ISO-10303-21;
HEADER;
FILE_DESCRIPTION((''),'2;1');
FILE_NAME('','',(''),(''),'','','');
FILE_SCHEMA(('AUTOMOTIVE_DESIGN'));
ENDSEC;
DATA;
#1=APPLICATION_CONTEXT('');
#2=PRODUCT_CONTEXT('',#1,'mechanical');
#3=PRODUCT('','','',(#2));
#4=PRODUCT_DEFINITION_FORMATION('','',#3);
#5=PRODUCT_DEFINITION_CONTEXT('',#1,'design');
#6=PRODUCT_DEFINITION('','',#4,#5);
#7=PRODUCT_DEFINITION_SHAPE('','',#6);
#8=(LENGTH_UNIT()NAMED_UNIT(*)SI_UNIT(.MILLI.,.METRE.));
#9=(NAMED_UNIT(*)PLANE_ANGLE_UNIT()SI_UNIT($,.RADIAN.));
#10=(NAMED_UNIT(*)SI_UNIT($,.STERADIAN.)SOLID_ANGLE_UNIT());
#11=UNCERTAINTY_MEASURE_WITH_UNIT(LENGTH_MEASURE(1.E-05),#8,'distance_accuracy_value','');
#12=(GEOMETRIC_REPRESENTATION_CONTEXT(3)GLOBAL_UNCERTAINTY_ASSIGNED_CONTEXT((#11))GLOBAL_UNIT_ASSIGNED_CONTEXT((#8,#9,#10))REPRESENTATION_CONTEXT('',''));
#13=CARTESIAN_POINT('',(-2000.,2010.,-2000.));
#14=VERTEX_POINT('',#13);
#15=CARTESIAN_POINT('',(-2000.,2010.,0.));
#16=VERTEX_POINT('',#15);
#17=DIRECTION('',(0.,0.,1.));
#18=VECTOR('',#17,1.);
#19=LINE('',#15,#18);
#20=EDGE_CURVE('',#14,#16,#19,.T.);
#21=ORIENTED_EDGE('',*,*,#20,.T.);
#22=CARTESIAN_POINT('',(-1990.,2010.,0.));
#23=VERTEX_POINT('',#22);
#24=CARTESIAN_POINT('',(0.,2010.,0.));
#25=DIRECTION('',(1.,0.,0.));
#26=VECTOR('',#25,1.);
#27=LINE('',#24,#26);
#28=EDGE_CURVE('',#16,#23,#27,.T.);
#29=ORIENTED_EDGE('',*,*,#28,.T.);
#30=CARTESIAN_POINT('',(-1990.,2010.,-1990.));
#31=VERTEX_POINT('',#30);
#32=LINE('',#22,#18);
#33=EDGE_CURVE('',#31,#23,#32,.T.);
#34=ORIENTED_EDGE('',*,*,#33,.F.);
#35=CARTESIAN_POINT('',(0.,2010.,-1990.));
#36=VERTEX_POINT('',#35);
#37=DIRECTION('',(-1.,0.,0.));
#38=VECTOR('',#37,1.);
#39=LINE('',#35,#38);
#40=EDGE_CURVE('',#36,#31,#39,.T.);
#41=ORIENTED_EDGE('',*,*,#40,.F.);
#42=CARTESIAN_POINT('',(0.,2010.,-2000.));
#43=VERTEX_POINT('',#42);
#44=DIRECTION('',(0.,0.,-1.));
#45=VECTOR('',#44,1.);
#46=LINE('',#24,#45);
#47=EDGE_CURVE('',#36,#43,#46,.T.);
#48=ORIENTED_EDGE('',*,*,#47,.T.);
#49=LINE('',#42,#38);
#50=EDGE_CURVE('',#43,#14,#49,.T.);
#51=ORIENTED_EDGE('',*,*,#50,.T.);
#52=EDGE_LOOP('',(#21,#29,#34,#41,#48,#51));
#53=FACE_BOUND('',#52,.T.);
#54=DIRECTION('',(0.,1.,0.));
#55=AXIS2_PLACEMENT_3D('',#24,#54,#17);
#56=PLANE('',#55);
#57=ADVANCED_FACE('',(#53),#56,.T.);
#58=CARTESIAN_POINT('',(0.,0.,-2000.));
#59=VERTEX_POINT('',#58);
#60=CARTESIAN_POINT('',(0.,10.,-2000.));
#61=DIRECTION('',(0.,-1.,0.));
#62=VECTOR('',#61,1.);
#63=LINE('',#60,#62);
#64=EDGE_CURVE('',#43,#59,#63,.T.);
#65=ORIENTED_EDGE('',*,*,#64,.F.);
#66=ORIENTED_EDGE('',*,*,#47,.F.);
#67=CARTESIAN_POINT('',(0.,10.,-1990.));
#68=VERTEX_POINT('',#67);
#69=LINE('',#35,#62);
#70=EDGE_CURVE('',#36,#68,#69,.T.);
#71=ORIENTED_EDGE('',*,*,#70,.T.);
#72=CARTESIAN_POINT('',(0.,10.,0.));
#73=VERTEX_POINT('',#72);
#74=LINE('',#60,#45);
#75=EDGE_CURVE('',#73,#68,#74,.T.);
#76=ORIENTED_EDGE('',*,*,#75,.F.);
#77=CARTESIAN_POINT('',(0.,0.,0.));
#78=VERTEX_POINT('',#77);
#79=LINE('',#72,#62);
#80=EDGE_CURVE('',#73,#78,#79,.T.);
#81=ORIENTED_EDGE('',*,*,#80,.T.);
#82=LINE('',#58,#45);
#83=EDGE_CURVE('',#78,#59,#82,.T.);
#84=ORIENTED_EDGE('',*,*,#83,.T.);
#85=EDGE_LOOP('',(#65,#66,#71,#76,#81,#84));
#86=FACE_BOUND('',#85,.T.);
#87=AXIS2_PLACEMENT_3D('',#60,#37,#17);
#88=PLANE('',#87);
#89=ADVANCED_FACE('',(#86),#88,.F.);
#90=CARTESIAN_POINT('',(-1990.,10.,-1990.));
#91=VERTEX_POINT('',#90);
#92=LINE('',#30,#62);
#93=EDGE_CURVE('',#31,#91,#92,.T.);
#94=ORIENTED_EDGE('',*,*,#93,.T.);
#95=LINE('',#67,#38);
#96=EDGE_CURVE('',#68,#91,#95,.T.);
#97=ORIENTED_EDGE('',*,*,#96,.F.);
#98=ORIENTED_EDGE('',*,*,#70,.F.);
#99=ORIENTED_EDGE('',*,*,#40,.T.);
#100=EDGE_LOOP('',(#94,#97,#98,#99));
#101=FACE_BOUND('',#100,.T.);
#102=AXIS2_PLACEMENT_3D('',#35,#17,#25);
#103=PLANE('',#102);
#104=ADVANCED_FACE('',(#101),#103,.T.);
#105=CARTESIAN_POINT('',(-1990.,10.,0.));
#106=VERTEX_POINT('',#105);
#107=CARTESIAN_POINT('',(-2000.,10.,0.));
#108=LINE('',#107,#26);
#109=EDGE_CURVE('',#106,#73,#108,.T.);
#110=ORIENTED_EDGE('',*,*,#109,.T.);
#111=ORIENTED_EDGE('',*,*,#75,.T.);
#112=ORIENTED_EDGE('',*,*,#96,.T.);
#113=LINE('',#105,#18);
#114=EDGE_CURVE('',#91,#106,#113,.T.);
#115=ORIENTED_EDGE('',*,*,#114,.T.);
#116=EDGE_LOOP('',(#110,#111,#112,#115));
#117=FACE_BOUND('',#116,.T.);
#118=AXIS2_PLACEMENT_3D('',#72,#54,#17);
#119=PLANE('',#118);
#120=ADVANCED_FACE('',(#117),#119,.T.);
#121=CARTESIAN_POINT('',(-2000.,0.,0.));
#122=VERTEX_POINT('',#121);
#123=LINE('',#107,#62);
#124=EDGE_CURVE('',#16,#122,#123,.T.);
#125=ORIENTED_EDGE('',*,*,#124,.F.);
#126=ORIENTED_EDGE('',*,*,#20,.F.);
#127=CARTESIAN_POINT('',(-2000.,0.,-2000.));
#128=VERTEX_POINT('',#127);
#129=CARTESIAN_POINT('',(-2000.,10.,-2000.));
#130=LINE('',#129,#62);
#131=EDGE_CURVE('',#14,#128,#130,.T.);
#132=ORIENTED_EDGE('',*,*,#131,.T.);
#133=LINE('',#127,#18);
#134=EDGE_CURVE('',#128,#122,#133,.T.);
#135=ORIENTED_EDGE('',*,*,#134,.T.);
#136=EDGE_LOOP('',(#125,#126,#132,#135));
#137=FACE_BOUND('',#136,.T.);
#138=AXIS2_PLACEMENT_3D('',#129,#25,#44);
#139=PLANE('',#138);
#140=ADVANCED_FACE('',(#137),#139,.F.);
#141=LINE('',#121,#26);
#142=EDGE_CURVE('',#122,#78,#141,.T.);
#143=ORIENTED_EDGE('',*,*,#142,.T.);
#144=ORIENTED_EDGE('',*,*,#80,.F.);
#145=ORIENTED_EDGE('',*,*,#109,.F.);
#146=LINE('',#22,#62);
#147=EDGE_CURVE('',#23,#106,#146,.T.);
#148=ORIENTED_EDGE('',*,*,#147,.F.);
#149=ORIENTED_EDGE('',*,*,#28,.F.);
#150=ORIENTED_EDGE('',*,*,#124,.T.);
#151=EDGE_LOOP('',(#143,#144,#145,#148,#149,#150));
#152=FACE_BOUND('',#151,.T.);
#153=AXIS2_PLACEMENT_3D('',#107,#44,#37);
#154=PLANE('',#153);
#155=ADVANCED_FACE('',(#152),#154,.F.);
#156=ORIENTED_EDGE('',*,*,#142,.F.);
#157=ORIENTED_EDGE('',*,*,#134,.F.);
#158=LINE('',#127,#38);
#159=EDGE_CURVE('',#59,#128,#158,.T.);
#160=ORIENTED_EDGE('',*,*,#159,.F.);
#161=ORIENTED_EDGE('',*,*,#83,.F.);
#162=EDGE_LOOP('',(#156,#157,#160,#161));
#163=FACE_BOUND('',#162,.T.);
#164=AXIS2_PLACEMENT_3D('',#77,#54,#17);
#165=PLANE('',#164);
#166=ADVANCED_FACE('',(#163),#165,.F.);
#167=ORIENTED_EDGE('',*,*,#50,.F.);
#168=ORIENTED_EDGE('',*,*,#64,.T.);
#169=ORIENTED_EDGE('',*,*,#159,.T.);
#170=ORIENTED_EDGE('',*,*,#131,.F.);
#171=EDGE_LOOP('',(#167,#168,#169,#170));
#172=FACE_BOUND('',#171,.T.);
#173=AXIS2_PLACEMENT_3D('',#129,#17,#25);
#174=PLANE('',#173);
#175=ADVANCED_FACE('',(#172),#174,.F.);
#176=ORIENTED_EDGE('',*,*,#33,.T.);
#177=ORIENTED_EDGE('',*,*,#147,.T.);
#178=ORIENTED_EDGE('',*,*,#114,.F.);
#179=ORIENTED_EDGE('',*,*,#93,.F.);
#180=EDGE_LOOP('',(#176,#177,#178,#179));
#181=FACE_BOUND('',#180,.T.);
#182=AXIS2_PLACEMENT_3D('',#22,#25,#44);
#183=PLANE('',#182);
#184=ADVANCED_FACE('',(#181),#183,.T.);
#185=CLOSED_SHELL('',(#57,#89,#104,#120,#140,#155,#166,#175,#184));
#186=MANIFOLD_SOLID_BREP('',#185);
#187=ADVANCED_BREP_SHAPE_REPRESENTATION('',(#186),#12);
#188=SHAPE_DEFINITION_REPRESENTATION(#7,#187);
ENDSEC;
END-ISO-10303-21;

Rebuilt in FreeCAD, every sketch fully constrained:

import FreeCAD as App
import Part
import Sketcher
Q = App.Units.Quantity


def add_polygon(sketch, points):
    """Adds a closed chain of lines whose ends are joined by coincident constraints."""
    first, n = sketch.GeometryCount, len(points)
    for a, b in zip(points, points[1:] + points[:1]):
        sketch.addGeometry(Part.LineSegment(App.Vector(*a, 0), App.Vector(*b, 0)), False)
    for i in range(n):
        sketch.addConstraint(Sketcher.Constraint("Coincident", first + i, 2, first + (i + 1) % n, 1))

doc = App.newDocument("Part")
body = doc.addObject("PartDesign::Body", "Body")

# Sketch on XZ plane
sketch1 = body.newObject("Sketcher::SketchObject", "Sketch")
sketch1.AttachmentSupport = (doc.getObject("XZ_Plane"), [""])
sketch1.MapMode = "FlatFace"
add_polygon(sketch1, [(-2000, -2000), (-2000, 0), (0, 0), (0, -2000)])  # lines 0-3
sketch1.addConstraint(Sketcher.Constraint("Vertical", 0))
sketch1.addConstraint(Sketcher.Constraint("Horizontal", 1))
sketch1.addConstraint(Sketcher.Constraint("Vertical", 2))
sketch1.addConstraint(Sketcher.Constraint("Horizontal", 3))
sketch1.addConstraint(Sketcher.Constraint("Coincident", 1, 2, -1, 1))
sketch1.addConstraint(Sketcher.Constraint("Equal", 3, 0))
sketch1.addConstraint(Sketcher.Constraint("DistanceX", 1, 1, 1, 2, Q("2000 mm")))
pad1 = body.newObject("PartDesign::Pad", "Pad")
pad1.Profile = sketch1
pad1.Length = 10
pad1.Reversed = True

# Sketch on XZ plane
sketch2 = body.newObject("Sketcher::SketchObject", "Sketch001")
sketch2.AttachmentSupport = (doc.getObject("XZ_Plane"), [""])
sketch2.MapMode = "FlatFace"
sketch2.AttachmentOffset = App.Placement(App.Vector(0, 0, -10), App.Rotation())
add_polygon(sketch2, [(0, -1990), (0, -2000), (-2000, -2000), (-2000, 0), (-1990, 0), (-1990, -1990)])  # lines 0-5
sketch2.addConstraint(Sketcher.Constraint("Vertical", 0))
sketch2.addConstraint(Sketcher.Constraint("Horizontal", 1))
sketch2.addConstraint(Sketcher.Constraint("Vertical", 2))
sketch2.addConstraint(Sketcher.Constraint("Horizontal", 3))
sketch2.addConstraint(Sketcher.Constraint("Vertical", 4))
sketch2.addConstraint(Sketcher.Constraint("Horizontal", 5))
sketch2.addConstraint(Sketcher.Constraint("PointOnObject", 0, 2, -2))
sketch2.addConstraint(Sketcher.Constraint("PointOnObject", 2, 2, -1))
sketch2.addConstraint(Sketcher.Constraint("Equal", 3, 0))
sketch2.addConstraint(Sketcher.Constraint("Equal", 1, 2))
sketch2.addConstraint(Sketcher.Constraint("DistanceX", 1, 2, 1, 1, Q("2000 mm")))
sketch2.addConstraint(Sketcher.Constraint("DistanceX", 3, 1, 3, 2, Q("10 mm")))
pad2 = body.newObject("PartDesign::Pad", "Pad001")
pad2.Profile = sketch2
pad2.Length = 2000
pad2.Reversed = True

doc.recompute()
